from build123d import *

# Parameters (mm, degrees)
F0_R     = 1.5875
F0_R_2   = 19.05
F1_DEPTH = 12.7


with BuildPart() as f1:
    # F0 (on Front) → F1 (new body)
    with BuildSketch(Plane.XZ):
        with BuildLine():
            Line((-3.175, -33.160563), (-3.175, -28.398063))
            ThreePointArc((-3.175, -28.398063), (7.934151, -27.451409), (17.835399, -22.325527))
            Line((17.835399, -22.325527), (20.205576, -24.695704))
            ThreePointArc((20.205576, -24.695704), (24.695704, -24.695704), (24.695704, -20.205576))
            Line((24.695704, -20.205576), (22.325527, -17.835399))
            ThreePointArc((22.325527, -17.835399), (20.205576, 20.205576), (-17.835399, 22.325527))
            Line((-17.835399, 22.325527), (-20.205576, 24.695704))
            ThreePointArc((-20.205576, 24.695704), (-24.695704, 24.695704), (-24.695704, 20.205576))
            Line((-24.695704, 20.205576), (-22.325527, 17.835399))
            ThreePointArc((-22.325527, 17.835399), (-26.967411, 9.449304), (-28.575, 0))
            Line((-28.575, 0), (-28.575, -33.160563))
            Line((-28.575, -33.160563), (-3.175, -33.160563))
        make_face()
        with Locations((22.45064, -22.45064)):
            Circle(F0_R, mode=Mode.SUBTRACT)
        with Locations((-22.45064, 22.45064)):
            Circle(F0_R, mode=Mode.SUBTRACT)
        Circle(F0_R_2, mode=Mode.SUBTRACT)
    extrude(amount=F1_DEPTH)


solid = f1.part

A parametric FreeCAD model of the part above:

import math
import FreeCAD as App
import Part
import Sketcher
from FreeCAD import Vector
Q = App.Units.Quantity

doc = App.newDocument("Part")
body = doc.addObject("PartDesign::Body", "Body")

sketch1 = body.newObject("Sketcher::SketchObject", "Sketch")
sketch1.AttachmentSupport = (doc.getObject("XZ_Plane"), [""])
sketch1.MapMode = "FlatFace"
sketch1.addGeometry([
    Part.LineSegment(Vector(-3.2, -33.2, 0), Vector(-3.2, -28.4, 0)),
    Part.ArcOfCircle(Part.Circle(Vector(0, 0, 0), Vector(0, 0, 1), 28.6), math.radians(-96), math.radians(-51)),
    Part.LineSegment(Vector(17.8, -22.3, 0), Vector(20.2, -24.7, 0)),
    Part.ArcOfCircle(Part.Circle(Vector(22.5, -22.5, 0), Vector(0, 0, 1), 3.2), math.radians(-135), math.radians(45)),
    Part.LineSegment(Vector(24.7, -20.2, 0), Vector(22.3, -17.8, 0)),
    Part.ArcOfCircle(Part.Circle(Vector(0, 0, 0), Vector(0, 0, 1), 28.6), math.radians(-39), math.radians(129)),
    Part.LineSegment(Vector(-17.8, 22.3, 0), Vector(-20.2, 24.7, 0)),
    Part.ArcOfCircle(Part.Circle(Vector(-22.5, 22.5, 0), Vector(0, 0, 1), 3.2), math.radians(45), math.radians(225)),
    Part.LineSegment(Vector(-24.7, 20.2, 0), Vector(-22.3, 17.8, 0)),
    Part.ArcOfCircle(Part.Circle(Vector(0, 0, 0), Vector(0, 0, 1), 28.6), math.radians(141), math.radians(180)),
    Part.LineSegment(Vector(-28.6, 0, 0), Vector(-28.6, -33.2, 0)),
    Part.LineSegment(Vector(-28.6, -33.2, 0), Vector(-3.2, -33.2, 0)),
    Part.Circle(Vector(22.5, -22.5, 0), Vector(0, 0, 1), 1.6),
    Part.Circle(Vector(-22.5, 22.5, 0), Vector(0, 0, 1), 1.6),
    Part.Circle(Vector(0, 0, 0), Vector(0, 0, 1), 19.1),
], False)
sketch1.addConstraint([
    Sketcher.Constraint("Coincident", 0, 2, 1, 1),
    Sketcher.Constraint("Coincident", 1, 2, 2, 1),
    Sketcher.Constraint("Tangent", 2, 2, 3, 1),
    Sketcher.Constraint("Tangent", 3, 2, 4, 1),
    Sketcher.Constraint("Coincident", 4, 2, 5, 1),
    Sketcher.Constraint("Coincident", 5, 2, 6, 1),
    Sketcher.Constraint("Tangent", 6, 2, 7, 1),
    Sketcher.Constraint("Tangent", 7, 2, 8, 1),
    Sketcher.Constraint("Coincident", 8, 2, 9, 1),
    Sketcher.Constraint("Tangent", 9, 2, 10, 1),
    Sketcher.Constraint("Coincident", 10, 2, 11, 1),
    Sketcher.Constraint("Coincident", 11, 2, 0, 1),
    Sketcher.Constraint("Vertical", 0),
    Sketcher.Constraint("Vertical", 10),
    Sketcher.Constraint("Horizontal", 11),
    Sketcher.Constraint("Coincident", 1, 3, -1, 1),
    Sketcher.Constraint("Coincident", 5, 3, -1, 1),
    Sketcher.Constraint("Coincident", 9, 3, -1, 1),
    Sketcher.Constraint("Coincident", 14, 3, -1, 1),
    Sketcher.Constraint("Coincident", 12, 3, 3, 3),
    Sketcher.Constraint("Coincident", 13, 3, 7, 3),
    Sketcher.Constraint("Equal", 1, 5),
    Sketcher.Constraint("Equal", 3, 7),
    Sketcher.Constraint("Equal", 12, 13),
    Sketcher.Constraint("Symmetric", 3, 3, 7, 3, -1, 1),
    Sketcher.Constraint("Symmetric", 4, 2, 8, 2, -1, 1),
    Sketcher.Constraint("Parallel", 2, 4),
    Sketcher.Constraint("Parallel", 4, 6),
    Sketcher.Constraint("Equal", 2, 4),
    Sketcher.Constraint("Diameter", 14, Q("1.5 in")),
    Sketcher.Constraint("DistanceX", 11, 1, 11, 2, Q("1 in")),
    Sketcher.Constraint("Diameter", 12, Q("0.125 in")),
    Sketcher.Constraint("Angle", 2, Q("-45 deg")),
    Sketcher.Constraint("Radius", 1, Q("1.125 in")),
    Sketcher.Constraint("Radius", 3, Q("0.125 in")),
    Sketcher.Constraint("DistanceY", 0, 1, 0, 2, Q("0.1875 in")),
    Sketcher.Constraint("DistanceY", 2, 2, 9, 3, Q("24.695702 mm")),
])
pad1 = body.newObject("PartDesign::Pad", "Pad")
pad1.Profile = sketch1
pad1.Length = Q("0.5 in")

doc.recompute()
